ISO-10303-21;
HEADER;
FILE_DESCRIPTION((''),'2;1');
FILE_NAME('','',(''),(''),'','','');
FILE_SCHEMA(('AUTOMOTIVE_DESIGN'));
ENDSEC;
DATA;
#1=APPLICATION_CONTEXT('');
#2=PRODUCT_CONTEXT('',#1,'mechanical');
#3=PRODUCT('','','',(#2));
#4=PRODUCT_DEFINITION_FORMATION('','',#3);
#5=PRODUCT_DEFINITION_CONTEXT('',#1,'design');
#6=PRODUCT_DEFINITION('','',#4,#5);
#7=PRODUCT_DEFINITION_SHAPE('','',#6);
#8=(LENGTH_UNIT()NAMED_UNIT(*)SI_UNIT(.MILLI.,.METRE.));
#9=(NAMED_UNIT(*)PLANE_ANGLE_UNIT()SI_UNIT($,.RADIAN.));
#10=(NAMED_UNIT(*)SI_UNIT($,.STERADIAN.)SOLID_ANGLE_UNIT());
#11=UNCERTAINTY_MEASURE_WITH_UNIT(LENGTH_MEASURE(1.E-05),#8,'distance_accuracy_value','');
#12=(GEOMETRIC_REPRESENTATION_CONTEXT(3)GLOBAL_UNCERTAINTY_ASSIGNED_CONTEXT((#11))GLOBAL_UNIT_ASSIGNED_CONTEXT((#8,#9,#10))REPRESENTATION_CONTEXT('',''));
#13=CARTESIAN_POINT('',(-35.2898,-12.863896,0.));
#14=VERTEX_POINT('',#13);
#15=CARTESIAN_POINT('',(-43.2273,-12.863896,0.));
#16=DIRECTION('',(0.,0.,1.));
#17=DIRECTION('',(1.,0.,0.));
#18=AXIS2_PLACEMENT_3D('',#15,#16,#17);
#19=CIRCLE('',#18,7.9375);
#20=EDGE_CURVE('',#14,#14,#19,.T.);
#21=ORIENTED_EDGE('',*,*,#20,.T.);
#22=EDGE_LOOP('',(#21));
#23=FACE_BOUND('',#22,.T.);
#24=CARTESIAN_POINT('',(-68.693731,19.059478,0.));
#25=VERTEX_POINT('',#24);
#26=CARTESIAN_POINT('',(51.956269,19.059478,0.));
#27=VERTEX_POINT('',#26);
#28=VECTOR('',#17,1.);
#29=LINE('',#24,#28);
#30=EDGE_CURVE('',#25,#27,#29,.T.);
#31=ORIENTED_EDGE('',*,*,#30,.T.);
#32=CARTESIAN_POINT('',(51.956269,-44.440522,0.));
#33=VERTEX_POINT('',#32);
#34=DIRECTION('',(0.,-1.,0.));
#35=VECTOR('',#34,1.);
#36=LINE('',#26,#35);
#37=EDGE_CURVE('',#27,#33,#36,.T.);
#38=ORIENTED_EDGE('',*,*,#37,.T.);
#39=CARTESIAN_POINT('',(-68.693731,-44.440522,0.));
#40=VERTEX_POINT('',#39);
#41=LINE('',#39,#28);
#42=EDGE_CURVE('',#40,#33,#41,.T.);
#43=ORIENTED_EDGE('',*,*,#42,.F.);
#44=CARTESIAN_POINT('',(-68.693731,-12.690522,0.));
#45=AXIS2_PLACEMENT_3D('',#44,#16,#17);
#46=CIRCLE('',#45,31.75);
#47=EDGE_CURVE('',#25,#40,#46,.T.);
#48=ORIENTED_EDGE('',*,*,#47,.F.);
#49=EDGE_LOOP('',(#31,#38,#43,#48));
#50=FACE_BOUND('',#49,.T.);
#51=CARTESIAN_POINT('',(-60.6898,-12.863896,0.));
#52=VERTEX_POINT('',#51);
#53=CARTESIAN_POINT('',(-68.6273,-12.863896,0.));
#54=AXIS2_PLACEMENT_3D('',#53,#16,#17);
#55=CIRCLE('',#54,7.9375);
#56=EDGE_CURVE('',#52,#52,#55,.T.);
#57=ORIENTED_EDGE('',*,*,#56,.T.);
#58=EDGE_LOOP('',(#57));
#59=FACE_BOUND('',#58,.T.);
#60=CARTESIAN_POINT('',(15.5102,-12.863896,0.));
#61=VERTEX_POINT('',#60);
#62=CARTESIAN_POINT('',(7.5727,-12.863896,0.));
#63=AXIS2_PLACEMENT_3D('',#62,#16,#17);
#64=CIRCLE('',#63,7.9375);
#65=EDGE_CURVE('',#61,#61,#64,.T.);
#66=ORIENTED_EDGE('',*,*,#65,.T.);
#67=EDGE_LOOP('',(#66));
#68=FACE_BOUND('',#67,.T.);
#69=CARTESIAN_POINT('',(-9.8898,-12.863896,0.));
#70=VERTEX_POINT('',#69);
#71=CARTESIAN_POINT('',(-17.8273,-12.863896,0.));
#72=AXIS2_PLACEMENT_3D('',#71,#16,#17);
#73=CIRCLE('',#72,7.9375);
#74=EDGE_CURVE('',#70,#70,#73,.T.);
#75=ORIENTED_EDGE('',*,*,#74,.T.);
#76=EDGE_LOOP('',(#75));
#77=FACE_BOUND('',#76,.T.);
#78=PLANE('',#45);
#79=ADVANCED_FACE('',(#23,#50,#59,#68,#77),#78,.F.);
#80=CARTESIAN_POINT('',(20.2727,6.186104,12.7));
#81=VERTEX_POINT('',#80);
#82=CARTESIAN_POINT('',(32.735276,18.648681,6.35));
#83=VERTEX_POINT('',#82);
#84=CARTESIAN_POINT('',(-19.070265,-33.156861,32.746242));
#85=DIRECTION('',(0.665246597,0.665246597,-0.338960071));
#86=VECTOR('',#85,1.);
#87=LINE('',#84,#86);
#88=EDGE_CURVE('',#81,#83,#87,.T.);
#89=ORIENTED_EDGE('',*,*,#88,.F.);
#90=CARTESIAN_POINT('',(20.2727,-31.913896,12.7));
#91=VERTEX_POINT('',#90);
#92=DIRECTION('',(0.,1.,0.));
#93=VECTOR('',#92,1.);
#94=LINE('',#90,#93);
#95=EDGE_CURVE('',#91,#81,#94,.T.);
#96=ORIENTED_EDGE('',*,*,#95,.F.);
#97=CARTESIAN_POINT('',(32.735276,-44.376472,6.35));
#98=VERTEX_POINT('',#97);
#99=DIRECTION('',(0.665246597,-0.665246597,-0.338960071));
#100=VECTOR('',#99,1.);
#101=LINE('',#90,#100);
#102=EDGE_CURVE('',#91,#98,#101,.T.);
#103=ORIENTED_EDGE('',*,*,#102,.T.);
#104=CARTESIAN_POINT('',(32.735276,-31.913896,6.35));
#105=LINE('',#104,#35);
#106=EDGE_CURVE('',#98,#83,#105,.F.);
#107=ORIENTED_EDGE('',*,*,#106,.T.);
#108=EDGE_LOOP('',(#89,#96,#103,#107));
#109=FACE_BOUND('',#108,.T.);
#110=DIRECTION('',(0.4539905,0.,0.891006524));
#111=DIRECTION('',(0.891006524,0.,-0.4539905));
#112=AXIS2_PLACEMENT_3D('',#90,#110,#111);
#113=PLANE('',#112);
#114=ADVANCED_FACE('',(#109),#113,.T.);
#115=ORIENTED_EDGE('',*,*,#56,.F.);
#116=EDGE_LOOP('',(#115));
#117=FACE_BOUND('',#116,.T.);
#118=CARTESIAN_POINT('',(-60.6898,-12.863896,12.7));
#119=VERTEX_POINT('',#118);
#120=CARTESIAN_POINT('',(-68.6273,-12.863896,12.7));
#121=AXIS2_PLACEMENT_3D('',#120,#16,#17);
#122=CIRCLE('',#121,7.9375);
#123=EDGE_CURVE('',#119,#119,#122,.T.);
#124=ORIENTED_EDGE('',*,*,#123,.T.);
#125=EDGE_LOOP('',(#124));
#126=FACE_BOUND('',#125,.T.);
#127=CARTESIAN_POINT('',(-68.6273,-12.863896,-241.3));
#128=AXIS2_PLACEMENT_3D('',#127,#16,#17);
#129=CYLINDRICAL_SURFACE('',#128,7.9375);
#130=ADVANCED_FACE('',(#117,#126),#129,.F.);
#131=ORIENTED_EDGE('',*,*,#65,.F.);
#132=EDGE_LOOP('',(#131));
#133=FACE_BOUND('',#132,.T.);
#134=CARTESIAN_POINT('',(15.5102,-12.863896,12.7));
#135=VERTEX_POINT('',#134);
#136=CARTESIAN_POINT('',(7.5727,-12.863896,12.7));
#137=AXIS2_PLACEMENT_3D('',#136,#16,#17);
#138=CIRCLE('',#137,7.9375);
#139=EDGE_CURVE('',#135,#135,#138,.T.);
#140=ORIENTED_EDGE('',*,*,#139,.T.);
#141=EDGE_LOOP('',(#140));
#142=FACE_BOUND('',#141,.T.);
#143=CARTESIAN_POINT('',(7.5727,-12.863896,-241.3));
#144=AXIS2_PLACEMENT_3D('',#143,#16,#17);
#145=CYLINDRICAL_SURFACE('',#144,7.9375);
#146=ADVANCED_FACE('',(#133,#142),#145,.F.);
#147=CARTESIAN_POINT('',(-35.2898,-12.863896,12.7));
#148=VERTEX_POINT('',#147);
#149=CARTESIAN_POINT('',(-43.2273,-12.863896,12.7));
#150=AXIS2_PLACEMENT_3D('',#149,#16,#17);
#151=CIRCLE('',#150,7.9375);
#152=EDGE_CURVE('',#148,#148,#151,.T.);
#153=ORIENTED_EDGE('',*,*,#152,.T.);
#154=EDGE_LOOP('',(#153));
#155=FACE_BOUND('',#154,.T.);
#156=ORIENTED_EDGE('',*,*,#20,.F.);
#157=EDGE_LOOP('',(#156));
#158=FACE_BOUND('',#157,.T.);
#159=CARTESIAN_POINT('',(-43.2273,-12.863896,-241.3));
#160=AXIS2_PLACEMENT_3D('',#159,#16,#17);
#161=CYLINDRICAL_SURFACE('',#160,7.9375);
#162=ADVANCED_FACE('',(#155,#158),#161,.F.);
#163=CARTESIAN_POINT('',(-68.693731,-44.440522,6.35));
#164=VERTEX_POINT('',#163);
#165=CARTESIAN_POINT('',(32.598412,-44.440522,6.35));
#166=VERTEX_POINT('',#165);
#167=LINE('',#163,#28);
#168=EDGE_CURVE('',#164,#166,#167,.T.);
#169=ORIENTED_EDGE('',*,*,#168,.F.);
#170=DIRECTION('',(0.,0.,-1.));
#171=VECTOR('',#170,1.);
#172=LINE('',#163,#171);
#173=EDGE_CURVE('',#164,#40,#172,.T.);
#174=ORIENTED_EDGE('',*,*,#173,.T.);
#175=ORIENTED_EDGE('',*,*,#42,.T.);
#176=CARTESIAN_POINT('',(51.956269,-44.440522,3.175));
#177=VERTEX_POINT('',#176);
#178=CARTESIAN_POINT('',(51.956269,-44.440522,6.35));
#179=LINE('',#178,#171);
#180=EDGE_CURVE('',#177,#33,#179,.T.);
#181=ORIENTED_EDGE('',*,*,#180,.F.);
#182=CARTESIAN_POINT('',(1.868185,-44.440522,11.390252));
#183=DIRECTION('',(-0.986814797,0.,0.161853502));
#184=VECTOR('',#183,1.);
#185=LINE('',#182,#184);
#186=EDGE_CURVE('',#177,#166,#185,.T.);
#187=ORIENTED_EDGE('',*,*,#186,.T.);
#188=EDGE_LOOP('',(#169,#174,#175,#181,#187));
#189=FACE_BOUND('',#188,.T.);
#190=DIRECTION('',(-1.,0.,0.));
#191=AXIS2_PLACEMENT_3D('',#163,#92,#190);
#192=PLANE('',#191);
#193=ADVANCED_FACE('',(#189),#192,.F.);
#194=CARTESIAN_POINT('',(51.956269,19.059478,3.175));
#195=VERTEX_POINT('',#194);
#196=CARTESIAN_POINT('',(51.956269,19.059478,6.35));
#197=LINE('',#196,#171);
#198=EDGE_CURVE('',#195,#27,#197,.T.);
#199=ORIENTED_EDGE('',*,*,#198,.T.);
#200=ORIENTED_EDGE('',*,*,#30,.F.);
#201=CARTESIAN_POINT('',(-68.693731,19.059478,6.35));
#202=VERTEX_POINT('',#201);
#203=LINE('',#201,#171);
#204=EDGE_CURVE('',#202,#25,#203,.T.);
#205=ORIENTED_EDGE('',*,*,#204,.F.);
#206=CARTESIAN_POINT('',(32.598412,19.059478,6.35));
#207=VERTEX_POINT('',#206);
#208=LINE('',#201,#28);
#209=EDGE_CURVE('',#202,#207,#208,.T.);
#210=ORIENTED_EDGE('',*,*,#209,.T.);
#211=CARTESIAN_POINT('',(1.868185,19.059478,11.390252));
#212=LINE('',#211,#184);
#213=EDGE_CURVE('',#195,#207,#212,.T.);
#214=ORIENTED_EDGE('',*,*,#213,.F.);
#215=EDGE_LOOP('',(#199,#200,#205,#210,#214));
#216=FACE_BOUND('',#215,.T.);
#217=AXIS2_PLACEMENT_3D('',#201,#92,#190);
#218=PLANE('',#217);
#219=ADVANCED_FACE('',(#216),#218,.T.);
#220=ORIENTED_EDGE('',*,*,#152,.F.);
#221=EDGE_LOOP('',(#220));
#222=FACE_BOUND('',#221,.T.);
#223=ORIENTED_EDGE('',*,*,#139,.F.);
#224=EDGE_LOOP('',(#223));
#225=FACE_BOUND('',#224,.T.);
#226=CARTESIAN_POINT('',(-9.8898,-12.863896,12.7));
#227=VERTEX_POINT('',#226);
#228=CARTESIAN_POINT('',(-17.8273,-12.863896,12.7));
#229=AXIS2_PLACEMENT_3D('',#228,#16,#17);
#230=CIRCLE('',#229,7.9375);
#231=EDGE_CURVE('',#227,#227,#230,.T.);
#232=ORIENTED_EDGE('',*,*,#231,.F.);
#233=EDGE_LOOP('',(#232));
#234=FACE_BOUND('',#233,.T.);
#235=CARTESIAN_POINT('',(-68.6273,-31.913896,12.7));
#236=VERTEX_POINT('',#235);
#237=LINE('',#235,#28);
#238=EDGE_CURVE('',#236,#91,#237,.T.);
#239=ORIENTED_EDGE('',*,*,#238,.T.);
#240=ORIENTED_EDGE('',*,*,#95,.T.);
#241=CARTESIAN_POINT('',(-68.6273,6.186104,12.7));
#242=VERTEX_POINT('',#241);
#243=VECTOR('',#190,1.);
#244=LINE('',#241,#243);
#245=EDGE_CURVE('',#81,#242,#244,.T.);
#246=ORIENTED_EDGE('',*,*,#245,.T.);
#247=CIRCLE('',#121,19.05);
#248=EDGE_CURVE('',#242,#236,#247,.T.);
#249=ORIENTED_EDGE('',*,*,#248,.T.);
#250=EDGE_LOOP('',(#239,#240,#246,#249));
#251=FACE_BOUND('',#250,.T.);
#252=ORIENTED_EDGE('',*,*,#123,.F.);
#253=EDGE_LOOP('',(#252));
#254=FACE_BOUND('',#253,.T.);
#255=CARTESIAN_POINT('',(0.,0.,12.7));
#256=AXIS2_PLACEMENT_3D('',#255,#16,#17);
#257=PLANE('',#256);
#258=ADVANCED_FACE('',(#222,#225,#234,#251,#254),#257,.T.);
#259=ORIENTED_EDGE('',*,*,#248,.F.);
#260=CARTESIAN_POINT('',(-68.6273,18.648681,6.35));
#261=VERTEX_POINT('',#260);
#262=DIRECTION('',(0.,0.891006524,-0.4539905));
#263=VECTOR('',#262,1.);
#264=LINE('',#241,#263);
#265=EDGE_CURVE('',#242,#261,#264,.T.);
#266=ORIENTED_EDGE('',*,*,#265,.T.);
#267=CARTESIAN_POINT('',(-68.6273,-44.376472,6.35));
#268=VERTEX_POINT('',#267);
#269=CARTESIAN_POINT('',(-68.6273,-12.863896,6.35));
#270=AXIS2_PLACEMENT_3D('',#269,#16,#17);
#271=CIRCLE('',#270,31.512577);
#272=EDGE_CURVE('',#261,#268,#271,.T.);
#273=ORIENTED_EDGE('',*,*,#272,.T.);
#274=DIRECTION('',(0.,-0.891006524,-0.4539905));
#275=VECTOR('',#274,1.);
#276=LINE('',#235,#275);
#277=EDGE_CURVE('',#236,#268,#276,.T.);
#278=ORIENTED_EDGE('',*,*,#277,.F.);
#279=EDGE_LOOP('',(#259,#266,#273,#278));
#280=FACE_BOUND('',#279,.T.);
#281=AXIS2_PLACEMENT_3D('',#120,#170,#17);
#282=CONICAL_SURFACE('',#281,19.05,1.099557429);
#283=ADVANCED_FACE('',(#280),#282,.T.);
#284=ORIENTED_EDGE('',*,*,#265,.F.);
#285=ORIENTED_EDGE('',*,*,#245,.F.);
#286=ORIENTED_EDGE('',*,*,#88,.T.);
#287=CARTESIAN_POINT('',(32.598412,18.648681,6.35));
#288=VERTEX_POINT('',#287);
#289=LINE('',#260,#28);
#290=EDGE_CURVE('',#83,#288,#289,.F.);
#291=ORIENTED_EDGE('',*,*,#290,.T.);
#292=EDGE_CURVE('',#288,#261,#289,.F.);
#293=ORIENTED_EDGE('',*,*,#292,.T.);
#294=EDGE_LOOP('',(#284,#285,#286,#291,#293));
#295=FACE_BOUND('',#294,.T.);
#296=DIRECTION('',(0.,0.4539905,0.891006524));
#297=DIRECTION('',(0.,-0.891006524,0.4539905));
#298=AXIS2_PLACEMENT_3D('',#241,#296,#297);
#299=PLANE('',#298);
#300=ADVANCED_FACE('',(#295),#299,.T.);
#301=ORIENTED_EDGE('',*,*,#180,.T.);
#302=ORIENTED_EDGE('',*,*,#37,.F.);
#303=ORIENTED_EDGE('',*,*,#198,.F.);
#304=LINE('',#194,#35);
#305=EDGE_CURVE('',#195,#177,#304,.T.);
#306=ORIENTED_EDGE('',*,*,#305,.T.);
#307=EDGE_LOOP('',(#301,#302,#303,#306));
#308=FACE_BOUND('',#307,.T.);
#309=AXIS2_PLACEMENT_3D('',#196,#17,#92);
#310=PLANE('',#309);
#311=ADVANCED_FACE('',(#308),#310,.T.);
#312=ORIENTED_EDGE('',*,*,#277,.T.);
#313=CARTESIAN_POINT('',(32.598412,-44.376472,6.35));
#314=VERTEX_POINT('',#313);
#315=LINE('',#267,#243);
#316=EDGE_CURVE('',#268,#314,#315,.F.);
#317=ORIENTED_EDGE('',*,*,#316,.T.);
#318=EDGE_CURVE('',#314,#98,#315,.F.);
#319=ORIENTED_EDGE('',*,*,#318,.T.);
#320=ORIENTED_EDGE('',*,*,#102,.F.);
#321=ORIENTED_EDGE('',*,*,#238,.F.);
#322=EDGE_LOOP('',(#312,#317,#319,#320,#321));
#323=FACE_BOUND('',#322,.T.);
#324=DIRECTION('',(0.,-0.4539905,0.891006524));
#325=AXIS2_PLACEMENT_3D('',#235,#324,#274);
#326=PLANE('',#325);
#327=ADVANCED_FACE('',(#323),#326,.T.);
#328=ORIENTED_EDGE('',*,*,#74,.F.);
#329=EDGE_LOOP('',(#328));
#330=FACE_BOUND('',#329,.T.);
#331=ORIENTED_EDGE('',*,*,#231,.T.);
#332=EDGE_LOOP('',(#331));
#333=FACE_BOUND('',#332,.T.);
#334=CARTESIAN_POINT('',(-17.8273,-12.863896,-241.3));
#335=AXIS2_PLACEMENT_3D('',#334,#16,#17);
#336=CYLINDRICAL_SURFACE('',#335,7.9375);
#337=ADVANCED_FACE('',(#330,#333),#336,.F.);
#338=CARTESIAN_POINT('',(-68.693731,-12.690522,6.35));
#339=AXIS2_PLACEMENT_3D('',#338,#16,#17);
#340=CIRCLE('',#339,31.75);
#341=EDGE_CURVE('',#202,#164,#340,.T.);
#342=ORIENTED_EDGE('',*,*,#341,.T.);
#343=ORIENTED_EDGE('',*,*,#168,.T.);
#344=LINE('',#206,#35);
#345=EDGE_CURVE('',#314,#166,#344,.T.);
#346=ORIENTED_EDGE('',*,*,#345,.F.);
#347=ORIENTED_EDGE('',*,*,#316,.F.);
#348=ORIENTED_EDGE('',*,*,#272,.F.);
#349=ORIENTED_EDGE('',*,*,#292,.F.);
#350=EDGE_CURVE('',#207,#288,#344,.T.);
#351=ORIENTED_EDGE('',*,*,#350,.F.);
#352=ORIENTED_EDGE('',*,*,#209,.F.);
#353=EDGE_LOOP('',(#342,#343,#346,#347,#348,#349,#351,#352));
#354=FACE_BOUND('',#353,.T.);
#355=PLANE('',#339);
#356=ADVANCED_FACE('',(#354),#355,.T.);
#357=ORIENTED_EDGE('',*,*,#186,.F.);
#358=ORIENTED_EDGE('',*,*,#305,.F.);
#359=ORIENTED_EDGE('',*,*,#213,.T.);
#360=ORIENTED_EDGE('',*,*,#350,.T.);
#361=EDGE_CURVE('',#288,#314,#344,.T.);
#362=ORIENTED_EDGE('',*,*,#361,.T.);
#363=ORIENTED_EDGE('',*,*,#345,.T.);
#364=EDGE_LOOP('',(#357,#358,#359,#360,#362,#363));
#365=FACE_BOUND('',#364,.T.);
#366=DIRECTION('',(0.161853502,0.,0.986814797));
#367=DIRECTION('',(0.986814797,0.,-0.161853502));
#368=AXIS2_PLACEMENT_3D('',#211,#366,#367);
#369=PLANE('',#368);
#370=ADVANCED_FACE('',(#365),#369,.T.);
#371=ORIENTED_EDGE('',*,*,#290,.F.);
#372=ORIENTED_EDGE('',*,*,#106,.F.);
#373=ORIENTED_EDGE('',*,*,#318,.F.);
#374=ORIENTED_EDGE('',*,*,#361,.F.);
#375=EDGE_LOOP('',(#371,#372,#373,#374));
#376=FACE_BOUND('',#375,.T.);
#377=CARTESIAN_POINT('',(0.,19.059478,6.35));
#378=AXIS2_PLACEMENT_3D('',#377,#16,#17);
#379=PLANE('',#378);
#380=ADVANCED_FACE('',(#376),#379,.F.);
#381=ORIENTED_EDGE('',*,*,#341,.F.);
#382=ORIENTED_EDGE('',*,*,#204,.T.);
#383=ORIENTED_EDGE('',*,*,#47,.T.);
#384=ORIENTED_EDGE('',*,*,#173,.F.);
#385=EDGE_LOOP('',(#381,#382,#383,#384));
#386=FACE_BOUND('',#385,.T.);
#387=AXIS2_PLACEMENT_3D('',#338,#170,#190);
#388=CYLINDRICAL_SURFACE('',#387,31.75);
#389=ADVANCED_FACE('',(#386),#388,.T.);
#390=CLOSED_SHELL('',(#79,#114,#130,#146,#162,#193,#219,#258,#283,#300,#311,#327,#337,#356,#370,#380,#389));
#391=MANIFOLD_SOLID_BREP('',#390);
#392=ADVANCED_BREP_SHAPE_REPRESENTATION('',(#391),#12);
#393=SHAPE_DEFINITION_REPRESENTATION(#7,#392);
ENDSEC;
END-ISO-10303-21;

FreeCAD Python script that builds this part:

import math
import FreeCAD as App
import Part
import Sketcher

V = App.Vector
Q = App.Units.Quantity


def faces_at(feature, points):
    """Names of the faces that lie closest to the given points."""
    faces = feature.Shape.Faces
    near = lambda p: min(range(len(faces)), key=lambda i: faces[i].distToShape(Part.Vertex(*p))[0])
    return sorted({f"Face{near(p) + 1}" for p in points})


def add_polygon(sketch, points):
    """Adds a closed chain of lines whose ends are joined by coincident constraints."""
    first, n = sketch.GeometryCount, len(points)
    for a, b in zip(points, points[1:] + points[:1]):
        sketch.addGeometry(Part.LineSegment(App.Vector(*a, 0), App.Vector(*b, 0)), False)
    for i in range(n):
        sketch.addConstraint(Sketcher.Constraint("Coincident", first + i, 2, first + (i + 1) % n, 1))

doc = App.newDocument("Part")
body = doc.addObject("PartDesign::Body", "Body")

# Sketch on XY plane
sketch1 = body.newObject("Sketcher::SketchObject", "Sketch")
sketch1.AttachmentSupport = (doc.getObject("XY_Plane"), [""])
sketch1.MapMode = "FlatFace"
sketch1.addGeometry(Part.LineSegment(V(52, 19, 0), V(-69, 19, 0)), False)
sketch1.addGeometry(Part.ArcOfCircle(Part.Circle(V(-69, -13, 0), V(0, 0, 1), 32), math.radians(90), math.radians(270)), False)
sketch1.addGeometry(Part.LineSegment(V(-69, -44, 0), V(52, -44, 0)), False)
sketch1.addGeometry(Part.LineSegment(V(52, -44, 0), V(52, 19, 0)), False)
sketch1.addConstraint(Sketcher.Constraint("Tangent", 0, 2, 1, 1))
sketch1.addConstraint(Sketcher.Constraint("Tangent", 1, 2, 2, 1))
sketch1.addConstraint(Sketcher.Constraint("Coincident", 2, 2, 3, 1))
sketch1.addConstraint(Sketcher.Constraint("Coincident", 3, 2, 0, 1))
sketch1.addConstraint(Sketcher.Constraint("Horizontal", 0))
sketch1.addConstraint(Sketcher.Constraint("Horizontal", 2))
sketch1.addConstraint(Sketcher.Constraint("Vertical", 3))
sketch1.addConstraint(Sketcher.Constraint("Radius", 1, Q("1.25 in")))
sketch1.addConstraint(Sketcher.Constraint("DistanceX", 0, 2, 0, 1, Q("4.75 in")))
sketch1.addConstraint(Sketcher.Constraint("DistanceX", 1, 3, -1, 1, Q("68.693731 mm")))
sketch1.addConstraint(Sketcher.Constraint("DistanceY", 1, 3, -1, 1, Q("12.690522 mm")))
pad1 = body.newObject("PartDesign::Pad", "Pad")
pad1.Profile = sketch1
pad1.Length = Q("0.25 in")
body2 = doc.addObject("PartDesign::Body", "Body001")

# Sketch on XY plane
sketch2 = body2.newObject("Sketcher::SketchObject", "Sketch001")
sketch2.AttachmentSupport = (doc.getObject("XY_Plane001"), [""])
sketch2.MapMode = "FlatFace"
sketch2.AttachmentOffset = App.Placement(V(0, 0, 0.5 * 25.4), App.Rotation())
sketch2.addGeometry(Part.LineSegment(V(-69, -32, 0), V(20, -32, 0)), False)
sketch2.addGeometry(Part.LineSegment(V(20, -32, 0), V(20, 6, 0)), False)
sketch2.addGeometry(Part.LineSegment(V(20, 6, 0), V(-69, 6, 0)), False)
sketch2.addGeometry(Part.ArcOfCircle(Part.Circle(V(-69, -13, 0), V(0, 0, 1), 19), math.radians(90), math.radians(270)), False)
sketch2.addConstraint(Sketcher.Constraint("Coincident", 0, 2, 1, 1))
sketch2.addConstraint(Sketcher.Constraint("Coincident", 1, 2, 2, 1))
sketch2.addConstraint(Sketcher.Constraint("Tangent", 2, 2, 3, 1))
sketch2.addConstraint(Sketcher.Constraint("Tangent", 3, 2, 0, 1))
sketch2.addConstraint(Sketcher.Constraint("Horizontal", 0))
sketch2.addConstraint(Sketcher.Constraint("Vertical", 1))
sketch2.addConstraint(Sketcher.Constraint("Horizontal", 2))
sketch2.addConstraint(Sketcher.Constraint("Radius", 3, Q("0.75 in")))
sketch2.addConstraint(Sketcher.Constraint("DistanceX", 0, 1, 0, 2, Q("3.5 in")))
sketch2.addConstraint(Sketcher.Constraint("DistanceX", 3, 3, -1, 1, Q("68.6273 mm")))
sketch2.addConstraint(Sketcher.Constraint("DistanceY", 3, 3, -1, 1, Q("12.863896 mm")))
pad2 = body2.newObject("PartDesign::Pad", "Pad001")
pad2.Profile = sketch2
pad2.Length = Q("0.25 in")
pad2.Reversed = True
doc.recompute()

datumplane = body2.newObject("PartDesign::Plane", "DatumPlane")
datumplane.AttachmentSupport = (doc.getObject("XY_Plane001"), [""])
datumplane.MapMode = "FlatFace"
datumplane.AttachmentOffset = App.Placement(V(0, 0, 0.5 * 25.4), App.Rotation())
draft = body2.newObject("PartDesign::Draft", "Draft")
draft.Base = (pad2, faces_at(pad2, [
    (-87.677, -12.864, 9.525),
    (-24.177, -31.914, 9.525),
    (20.273, -12.864, 9.525),
    (-24.177, 6.186, 9.525),
]))
draft.NeutralPlane = (datumplane, [""])
draft.Angle = 63
draft.Reversed = False
doc.recompute()

boolean = body.newObject("PartDesign::Boolean", "Boolean")
boolean.Type = "Fuse"
boolean.addObjects([body2])

# Sketch on XZ plane
sketch3 = body.newObject("Sketcher::SketchObject", "Sketch002")
sketch3.AttachmentSupport = (doc.getObject("XZ_Plane"), [""])
sketch3.MapMode = "FlatFace"
sketch3.AttachmentOffset = App.Placement(V(0, 0, 44.440522), App.Rotation())
add_polygon(sketch3, [(32.6, 6.3), (52, 3.2), (52, 6.3)])  # lines 0-2
sketch3.addConstraint(Sketcher.Constraint("Vertical", 1))
sketch3.addConstraint(Sketcher.Constraint("Horizontal", 2))
sketch3.addConstraint(Sketcher.Constraint("DistanceY", 1, 1, 1, 2, Q("0.125 in")))
sketch3.addConstraint(Sketcher.Constraint("DistanceY", -1, 1, 1, 2, Q("0.25 in")))
sketch3.addConstraint(Sketcher.Constraint("DistanceX", 2, 2, 2, 1, Q("19.357857 mm")))
sketch3.addConstraint(Sketcher.Constraint("DistanceX", -1, 1, 0, 2, Q("51.956269 mm")))
pocket1 = body.newObject("PartDesign::Pocket", "Pocket")
pocket1.Profile = sketch3
pocket1.Length = Q("2.5 in")

# Sketch on XY plane
sketch4 = body.newObject("Sketcher::SketchObject", "Sketch003")
sketch4.AttachmentSupport = (doc.getObject("XY_Plane"), [""])
sketch4.MapMode = "FlatFace"
sketch4.AttachmentOffset = App.Placement(V(0, 0, 0.5 * 25.4), App.Rotation())
sketch4.addGeometry(Part.Circle(V(-69, -13, 0), V(0, 0, 1), 8), False)
sketch4.addGeometry(Part.Circle(V(-43, -13, 0), V(0, 0, 1), 8), False)
sketch4.addGeometry(Part.Circle(V(-18, -13, 0), V(0, 0, 1), 8), False)
sketch4.addGeometry(Part.Circle(V(8, -13, 0), V(0, 0, 1), 8), False)
sketch4.addConstraint(Sketcher.Constraint("Equal", 0, 1))
sketch4.addConstraint(Sketcher.Constraint("Equal", 1, 2))
sketch4.addConstraint(Sketcher.Constraint("Equal", 2, 3))
sketch4.addConstraint(Sketcher.Constraint("Horizontal", 0, 3, 1, 3))
sketch4.addConstraint(Sketcher.Constraint("Horizontal", 1, 3, 2, 3))
sketch4.addConstraint(Sketcher.Constraint("Horizontal", 2, 3, 3, 3))
sketch4.addConstraint(Sketcher.Constraint("Diameter", 0, Q("0.625 in")))
sketch4.addConstraint(Sketcher.Constraint("DistanceX", 0, 3, 1, 3, Q("1 in")))
sketch4.addConstraint(Sketcher.Constraint("DistanceX", 1, 3, 2, 3, Q("1 in")))
sketch4.addConstraint(Sketcher.Constraint("DistanceX", 2, 3, 3, 3, Q("1 in")))
sketch4.addConstraint(Sketcher.Constraint("DistanceX", 0, 3, -1, 1, Q("68.6273 mm")))
sketch4.addConstraint(Sketcher.Constraint("DistanceY", 0, 3, -1, 1, Q("12.863896 mm")))
pocket2 = body.newObject("PartDesign::Pocket", "Pocket001")
pocket2.Profile = sketch4
pocket2.Length = Q("10 in")

doc.recompute()
